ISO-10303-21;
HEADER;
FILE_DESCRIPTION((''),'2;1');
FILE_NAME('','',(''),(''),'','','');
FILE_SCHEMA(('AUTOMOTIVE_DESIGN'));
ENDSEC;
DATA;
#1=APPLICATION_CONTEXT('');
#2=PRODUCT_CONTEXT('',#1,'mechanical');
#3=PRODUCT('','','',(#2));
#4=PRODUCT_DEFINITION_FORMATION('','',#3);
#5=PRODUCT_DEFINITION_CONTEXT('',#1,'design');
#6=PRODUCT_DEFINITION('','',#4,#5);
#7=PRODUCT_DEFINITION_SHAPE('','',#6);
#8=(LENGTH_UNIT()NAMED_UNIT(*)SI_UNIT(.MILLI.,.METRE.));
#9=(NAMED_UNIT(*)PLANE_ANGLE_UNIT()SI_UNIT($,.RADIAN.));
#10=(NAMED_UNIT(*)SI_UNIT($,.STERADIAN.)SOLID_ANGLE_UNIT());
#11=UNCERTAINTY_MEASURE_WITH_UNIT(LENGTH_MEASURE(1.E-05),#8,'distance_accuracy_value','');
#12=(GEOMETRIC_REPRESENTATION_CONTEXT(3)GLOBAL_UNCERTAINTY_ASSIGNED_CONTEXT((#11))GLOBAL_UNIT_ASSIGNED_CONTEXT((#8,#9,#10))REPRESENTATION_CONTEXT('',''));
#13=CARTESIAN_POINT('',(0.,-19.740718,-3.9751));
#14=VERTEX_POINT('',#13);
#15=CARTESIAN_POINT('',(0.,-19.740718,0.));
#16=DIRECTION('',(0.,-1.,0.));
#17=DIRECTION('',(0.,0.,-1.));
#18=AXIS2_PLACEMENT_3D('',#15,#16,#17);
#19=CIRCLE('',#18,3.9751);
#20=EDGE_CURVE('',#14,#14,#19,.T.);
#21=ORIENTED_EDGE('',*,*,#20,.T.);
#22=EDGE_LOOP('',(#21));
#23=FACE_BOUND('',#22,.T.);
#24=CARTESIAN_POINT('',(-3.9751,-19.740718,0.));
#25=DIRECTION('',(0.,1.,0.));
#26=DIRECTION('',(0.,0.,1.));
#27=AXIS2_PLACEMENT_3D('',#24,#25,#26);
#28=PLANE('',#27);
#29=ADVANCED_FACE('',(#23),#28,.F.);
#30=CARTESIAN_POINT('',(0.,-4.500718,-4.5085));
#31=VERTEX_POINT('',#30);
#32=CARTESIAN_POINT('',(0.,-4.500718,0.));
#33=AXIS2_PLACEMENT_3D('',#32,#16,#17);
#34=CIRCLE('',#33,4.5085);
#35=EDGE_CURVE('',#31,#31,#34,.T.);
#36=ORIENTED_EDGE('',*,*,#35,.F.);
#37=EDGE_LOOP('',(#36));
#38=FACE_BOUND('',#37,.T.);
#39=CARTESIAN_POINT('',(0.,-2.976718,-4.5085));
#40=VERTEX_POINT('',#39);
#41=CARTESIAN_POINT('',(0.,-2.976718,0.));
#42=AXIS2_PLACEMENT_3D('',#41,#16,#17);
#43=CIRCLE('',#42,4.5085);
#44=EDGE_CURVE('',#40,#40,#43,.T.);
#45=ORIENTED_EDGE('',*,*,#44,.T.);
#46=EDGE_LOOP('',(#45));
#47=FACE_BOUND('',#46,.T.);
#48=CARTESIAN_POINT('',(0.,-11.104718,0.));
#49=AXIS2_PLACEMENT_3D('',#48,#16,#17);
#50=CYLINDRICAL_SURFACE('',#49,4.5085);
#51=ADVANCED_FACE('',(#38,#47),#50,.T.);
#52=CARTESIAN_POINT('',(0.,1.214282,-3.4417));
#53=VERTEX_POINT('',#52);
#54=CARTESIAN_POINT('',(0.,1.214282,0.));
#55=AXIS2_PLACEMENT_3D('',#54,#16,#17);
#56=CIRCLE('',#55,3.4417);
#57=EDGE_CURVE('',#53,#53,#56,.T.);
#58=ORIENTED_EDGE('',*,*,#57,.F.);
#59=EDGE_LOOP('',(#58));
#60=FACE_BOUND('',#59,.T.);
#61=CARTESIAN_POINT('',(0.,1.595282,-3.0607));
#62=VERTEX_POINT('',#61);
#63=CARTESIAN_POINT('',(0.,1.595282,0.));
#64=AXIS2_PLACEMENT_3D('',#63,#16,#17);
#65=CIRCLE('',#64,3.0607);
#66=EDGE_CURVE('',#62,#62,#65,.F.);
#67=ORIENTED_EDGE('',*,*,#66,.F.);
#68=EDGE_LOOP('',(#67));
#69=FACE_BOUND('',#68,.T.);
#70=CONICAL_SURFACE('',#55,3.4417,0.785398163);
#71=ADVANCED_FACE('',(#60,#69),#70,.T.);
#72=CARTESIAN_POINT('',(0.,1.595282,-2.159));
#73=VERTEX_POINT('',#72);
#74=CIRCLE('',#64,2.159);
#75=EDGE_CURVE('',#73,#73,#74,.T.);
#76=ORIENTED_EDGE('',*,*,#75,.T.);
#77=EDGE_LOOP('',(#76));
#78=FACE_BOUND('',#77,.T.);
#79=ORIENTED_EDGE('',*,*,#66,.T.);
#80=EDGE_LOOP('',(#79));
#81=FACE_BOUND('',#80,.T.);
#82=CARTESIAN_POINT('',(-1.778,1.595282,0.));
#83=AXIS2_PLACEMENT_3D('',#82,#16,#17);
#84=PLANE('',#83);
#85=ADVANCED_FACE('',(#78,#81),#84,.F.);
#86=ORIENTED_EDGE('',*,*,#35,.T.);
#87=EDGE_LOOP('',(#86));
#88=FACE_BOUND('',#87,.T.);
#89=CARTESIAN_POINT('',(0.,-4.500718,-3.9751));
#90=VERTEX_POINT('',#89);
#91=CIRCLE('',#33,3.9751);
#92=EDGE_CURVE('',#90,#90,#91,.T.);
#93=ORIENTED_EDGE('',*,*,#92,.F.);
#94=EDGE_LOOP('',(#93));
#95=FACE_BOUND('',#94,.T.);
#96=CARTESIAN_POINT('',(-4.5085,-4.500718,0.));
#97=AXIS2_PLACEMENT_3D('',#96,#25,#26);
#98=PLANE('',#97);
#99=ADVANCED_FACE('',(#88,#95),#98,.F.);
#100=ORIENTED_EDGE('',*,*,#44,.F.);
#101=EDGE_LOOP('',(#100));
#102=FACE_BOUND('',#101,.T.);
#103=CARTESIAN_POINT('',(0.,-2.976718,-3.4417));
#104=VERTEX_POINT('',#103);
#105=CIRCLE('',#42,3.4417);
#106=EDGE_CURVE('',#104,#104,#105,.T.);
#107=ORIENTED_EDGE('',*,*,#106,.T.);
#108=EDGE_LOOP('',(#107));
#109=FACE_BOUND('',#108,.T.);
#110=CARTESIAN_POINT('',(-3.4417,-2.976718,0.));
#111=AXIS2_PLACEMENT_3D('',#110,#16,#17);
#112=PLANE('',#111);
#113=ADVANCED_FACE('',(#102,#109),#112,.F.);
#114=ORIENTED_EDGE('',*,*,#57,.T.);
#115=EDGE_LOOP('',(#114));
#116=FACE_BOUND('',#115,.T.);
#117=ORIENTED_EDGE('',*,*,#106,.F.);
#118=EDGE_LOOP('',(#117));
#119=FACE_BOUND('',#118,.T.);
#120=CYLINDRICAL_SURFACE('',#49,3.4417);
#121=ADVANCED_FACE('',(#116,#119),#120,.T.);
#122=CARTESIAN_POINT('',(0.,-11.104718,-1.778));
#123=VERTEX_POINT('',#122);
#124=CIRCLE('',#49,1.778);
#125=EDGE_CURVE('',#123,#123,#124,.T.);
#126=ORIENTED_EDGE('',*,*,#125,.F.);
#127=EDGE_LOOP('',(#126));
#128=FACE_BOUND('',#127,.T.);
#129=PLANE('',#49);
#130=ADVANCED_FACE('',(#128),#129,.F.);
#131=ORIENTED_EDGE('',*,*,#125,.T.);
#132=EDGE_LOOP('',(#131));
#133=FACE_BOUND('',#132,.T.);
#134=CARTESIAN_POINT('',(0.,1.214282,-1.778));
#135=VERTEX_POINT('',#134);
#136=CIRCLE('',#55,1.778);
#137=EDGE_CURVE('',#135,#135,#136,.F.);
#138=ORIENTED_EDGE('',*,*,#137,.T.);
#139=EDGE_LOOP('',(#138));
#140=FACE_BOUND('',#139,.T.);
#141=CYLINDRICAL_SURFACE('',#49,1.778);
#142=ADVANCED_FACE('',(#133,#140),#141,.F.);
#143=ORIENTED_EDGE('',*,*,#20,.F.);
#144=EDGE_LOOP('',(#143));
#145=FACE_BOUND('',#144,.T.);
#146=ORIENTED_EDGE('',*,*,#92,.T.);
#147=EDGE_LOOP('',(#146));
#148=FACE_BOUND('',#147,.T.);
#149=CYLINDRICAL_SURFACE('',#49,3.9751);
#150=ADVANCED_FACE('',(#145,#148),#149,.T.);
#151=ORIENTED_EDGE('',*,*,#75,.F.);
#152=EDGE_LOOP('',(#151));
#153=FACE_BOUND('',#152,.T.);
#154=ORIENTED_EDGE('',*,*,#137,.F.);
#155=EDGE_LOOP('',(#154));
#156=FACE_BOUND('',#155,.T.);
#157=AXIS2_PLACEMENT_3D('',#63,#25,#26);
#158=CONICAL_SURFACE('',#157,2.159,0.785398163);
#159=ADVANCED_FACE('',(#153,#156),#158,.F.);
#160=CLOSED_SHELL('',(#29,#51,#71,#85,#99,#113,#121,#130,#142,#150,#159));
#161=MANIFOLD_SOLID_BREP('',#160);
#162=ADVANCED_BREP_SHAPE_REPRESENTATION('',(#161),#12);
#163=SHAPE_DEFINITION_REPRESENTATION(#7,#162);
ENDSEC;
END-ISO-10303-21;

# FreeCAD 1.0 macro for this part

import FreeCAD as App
import Part
import Sketcher
from FreeCAD import Vector
Q = App.Units.Quantity


def edges_at(feature, points):
    """Names of the edges that pass closest to the given points."""
    edges = feature.Shape.Edges
    near = lambda p: min(range(len(edges)), key=lambda i: edges[i].distToShape(Part.Vertex(*p))[0])
    return sorted({f"Edge{near(p) + 1}" for p in points})

doc = App.newDocument("Part")
body = doc.addObject("PartDesign::Body", "Body")

# Sketch on XY plane
sketch1 = body.newObject("Sketcher::SketchObject", "Sketch")
sketch1.AttachmentSupport = (doc.getObject("XY_Plane"), [""])
sketch1.MapMode = "FlatFace"
sketch1.addGeometry([
    Part.LineSegment(Vector(-1.8, 1.6, 0), Vector(-3.4, 1.6, 0)),  # 0
    Part.LineSegment(Vector(-3.4, 1.6, 0), Vector(-3.4, -3, 0)),  # 1
    Part.LineSegment(Vector(-3.4, -3, 0), Vector(-4.5, -3, 0)),  # 2
    Part.LineSegment(Vector(-4.5, -3, 0), Vector(-4.5, -4.5, 0)),  # 3
    Part.LineSegment(Vector(-4.5, -4.5, 0), Vector(-4, -4.5, 0)),  # 4
    Part.LineSegment(Vector(-4, -4.5, 0), Vector(-4, -19.7, 0)),  # 5
    Part.LineSegment(Vector(-4, -19.7, 0), Vector(0, -19.7, 0)),  # 6
    Part.LineSegment(Vector(0, -19.7, 0), Vector(0, -11.1, 0)),  # 7
    Part.LineSegment(Vector(0, -11.1, 0), Vector(-1.8, -11.1, 0)),  # 8
    Part.LineSegment(Vector(-1.8, -11.1, 0), Vector(-1.8, 1.6, 0)),  # 9
], False)
sketch1.addConstraint([
    Sketcher.Constraint("Coincident", 0, 2, 1, 1),
    Sketcher.Constraint("Coincident", 1, 2, 2, 1),
    Sketcher.Constraint("Coincident", 2, 2, 3, 1),
    Sketcher.Constraint("Coincident", 3, 2, 4, 1),
    Sketcher.Constraint("Coincident", 4, 2, 5, 1),
    Sketcher.Constraint("Coincident", 5, 2, 6, 1),
    Sketcher.Constraint("Coincident", 6, 2, 7, 1),
    Sketcher.Constraint("Coincident", 7, 2, 8, 1),
    Sketcher.Constraint("Coincident", 8, 2, 9, 1),
    Sketcher.Constraint("Coincident", 9, 2, 0, 1),
    Sketcher.Constraint("Horizontal", 0),
    Sketcher.Constraint("Vertical", 1),
    Sketcher.Constraint("Horizontal", 2),
    Sketcher.Constraint("Vertical", 3),
    Sketcher.Constraint("Horizontal", 4),
    Sketcher.Constraint("Vertical", 5),
    Sketcher.Constraint("Horizontal", 6),
    Sketcher.Constraint("Vertical", 7),
    Sketcher.Constraint("Horizontal", 8),
    Sketcher.Constraint("Vertical", 9),
    Sketcher.Constraint("PointOnObject", 6, 2, -2),
    Sketcher.Constraint("DistanceY", 5, 2, 5, 1, Q("0.6 in")),
    Sketcher.Constraint("DistanceY", 9, 1, 9, 2, Q("0.5 in")),
    Sketcher.Constraint("DistanceX", 8, 2, 8, 1, Q("0.07 in")),
    Sketcher.Constraint("DistanceY", 1, 2, 1, 1, Q("0.18 in")),
    Sketcher.Constraint("DistanceY", 3, 2, 3, 1, Q("0.06 in")),
    Sketcher.Constraint("DistanceX", 2, 2, 2, 1, Q("0.042 in")),
    Sketcher.Constraint("DistanceX", 4, 1, 4, 2, Q("0.021 in")),
    Sketcher.Constraint("DistanceX", 0, 2, 0, 1, Q("0.0655 in")),
    Sketcher.Constraint("DistanceY", -1, 1, 0, 2, 1.595282),
])
revolution = body.newObject("PartDesign::Revolution", "Revolution")
revolution.Profile = sketch1
revolution.ReferenceAxis = (sketch1, ["V_Axis"])
revolution.Angle = 360
doc.recompute()

chamfer = body.newObject("PartDesign::Chamfer", "Chamfer")
chamfer.Base = (revolution, edges_at(revolution, [(0, 1.595, 3.442), (0, 1.595, 1.778)]))
chamfer.Size = Q("0.015 in")

doc.recompute()
